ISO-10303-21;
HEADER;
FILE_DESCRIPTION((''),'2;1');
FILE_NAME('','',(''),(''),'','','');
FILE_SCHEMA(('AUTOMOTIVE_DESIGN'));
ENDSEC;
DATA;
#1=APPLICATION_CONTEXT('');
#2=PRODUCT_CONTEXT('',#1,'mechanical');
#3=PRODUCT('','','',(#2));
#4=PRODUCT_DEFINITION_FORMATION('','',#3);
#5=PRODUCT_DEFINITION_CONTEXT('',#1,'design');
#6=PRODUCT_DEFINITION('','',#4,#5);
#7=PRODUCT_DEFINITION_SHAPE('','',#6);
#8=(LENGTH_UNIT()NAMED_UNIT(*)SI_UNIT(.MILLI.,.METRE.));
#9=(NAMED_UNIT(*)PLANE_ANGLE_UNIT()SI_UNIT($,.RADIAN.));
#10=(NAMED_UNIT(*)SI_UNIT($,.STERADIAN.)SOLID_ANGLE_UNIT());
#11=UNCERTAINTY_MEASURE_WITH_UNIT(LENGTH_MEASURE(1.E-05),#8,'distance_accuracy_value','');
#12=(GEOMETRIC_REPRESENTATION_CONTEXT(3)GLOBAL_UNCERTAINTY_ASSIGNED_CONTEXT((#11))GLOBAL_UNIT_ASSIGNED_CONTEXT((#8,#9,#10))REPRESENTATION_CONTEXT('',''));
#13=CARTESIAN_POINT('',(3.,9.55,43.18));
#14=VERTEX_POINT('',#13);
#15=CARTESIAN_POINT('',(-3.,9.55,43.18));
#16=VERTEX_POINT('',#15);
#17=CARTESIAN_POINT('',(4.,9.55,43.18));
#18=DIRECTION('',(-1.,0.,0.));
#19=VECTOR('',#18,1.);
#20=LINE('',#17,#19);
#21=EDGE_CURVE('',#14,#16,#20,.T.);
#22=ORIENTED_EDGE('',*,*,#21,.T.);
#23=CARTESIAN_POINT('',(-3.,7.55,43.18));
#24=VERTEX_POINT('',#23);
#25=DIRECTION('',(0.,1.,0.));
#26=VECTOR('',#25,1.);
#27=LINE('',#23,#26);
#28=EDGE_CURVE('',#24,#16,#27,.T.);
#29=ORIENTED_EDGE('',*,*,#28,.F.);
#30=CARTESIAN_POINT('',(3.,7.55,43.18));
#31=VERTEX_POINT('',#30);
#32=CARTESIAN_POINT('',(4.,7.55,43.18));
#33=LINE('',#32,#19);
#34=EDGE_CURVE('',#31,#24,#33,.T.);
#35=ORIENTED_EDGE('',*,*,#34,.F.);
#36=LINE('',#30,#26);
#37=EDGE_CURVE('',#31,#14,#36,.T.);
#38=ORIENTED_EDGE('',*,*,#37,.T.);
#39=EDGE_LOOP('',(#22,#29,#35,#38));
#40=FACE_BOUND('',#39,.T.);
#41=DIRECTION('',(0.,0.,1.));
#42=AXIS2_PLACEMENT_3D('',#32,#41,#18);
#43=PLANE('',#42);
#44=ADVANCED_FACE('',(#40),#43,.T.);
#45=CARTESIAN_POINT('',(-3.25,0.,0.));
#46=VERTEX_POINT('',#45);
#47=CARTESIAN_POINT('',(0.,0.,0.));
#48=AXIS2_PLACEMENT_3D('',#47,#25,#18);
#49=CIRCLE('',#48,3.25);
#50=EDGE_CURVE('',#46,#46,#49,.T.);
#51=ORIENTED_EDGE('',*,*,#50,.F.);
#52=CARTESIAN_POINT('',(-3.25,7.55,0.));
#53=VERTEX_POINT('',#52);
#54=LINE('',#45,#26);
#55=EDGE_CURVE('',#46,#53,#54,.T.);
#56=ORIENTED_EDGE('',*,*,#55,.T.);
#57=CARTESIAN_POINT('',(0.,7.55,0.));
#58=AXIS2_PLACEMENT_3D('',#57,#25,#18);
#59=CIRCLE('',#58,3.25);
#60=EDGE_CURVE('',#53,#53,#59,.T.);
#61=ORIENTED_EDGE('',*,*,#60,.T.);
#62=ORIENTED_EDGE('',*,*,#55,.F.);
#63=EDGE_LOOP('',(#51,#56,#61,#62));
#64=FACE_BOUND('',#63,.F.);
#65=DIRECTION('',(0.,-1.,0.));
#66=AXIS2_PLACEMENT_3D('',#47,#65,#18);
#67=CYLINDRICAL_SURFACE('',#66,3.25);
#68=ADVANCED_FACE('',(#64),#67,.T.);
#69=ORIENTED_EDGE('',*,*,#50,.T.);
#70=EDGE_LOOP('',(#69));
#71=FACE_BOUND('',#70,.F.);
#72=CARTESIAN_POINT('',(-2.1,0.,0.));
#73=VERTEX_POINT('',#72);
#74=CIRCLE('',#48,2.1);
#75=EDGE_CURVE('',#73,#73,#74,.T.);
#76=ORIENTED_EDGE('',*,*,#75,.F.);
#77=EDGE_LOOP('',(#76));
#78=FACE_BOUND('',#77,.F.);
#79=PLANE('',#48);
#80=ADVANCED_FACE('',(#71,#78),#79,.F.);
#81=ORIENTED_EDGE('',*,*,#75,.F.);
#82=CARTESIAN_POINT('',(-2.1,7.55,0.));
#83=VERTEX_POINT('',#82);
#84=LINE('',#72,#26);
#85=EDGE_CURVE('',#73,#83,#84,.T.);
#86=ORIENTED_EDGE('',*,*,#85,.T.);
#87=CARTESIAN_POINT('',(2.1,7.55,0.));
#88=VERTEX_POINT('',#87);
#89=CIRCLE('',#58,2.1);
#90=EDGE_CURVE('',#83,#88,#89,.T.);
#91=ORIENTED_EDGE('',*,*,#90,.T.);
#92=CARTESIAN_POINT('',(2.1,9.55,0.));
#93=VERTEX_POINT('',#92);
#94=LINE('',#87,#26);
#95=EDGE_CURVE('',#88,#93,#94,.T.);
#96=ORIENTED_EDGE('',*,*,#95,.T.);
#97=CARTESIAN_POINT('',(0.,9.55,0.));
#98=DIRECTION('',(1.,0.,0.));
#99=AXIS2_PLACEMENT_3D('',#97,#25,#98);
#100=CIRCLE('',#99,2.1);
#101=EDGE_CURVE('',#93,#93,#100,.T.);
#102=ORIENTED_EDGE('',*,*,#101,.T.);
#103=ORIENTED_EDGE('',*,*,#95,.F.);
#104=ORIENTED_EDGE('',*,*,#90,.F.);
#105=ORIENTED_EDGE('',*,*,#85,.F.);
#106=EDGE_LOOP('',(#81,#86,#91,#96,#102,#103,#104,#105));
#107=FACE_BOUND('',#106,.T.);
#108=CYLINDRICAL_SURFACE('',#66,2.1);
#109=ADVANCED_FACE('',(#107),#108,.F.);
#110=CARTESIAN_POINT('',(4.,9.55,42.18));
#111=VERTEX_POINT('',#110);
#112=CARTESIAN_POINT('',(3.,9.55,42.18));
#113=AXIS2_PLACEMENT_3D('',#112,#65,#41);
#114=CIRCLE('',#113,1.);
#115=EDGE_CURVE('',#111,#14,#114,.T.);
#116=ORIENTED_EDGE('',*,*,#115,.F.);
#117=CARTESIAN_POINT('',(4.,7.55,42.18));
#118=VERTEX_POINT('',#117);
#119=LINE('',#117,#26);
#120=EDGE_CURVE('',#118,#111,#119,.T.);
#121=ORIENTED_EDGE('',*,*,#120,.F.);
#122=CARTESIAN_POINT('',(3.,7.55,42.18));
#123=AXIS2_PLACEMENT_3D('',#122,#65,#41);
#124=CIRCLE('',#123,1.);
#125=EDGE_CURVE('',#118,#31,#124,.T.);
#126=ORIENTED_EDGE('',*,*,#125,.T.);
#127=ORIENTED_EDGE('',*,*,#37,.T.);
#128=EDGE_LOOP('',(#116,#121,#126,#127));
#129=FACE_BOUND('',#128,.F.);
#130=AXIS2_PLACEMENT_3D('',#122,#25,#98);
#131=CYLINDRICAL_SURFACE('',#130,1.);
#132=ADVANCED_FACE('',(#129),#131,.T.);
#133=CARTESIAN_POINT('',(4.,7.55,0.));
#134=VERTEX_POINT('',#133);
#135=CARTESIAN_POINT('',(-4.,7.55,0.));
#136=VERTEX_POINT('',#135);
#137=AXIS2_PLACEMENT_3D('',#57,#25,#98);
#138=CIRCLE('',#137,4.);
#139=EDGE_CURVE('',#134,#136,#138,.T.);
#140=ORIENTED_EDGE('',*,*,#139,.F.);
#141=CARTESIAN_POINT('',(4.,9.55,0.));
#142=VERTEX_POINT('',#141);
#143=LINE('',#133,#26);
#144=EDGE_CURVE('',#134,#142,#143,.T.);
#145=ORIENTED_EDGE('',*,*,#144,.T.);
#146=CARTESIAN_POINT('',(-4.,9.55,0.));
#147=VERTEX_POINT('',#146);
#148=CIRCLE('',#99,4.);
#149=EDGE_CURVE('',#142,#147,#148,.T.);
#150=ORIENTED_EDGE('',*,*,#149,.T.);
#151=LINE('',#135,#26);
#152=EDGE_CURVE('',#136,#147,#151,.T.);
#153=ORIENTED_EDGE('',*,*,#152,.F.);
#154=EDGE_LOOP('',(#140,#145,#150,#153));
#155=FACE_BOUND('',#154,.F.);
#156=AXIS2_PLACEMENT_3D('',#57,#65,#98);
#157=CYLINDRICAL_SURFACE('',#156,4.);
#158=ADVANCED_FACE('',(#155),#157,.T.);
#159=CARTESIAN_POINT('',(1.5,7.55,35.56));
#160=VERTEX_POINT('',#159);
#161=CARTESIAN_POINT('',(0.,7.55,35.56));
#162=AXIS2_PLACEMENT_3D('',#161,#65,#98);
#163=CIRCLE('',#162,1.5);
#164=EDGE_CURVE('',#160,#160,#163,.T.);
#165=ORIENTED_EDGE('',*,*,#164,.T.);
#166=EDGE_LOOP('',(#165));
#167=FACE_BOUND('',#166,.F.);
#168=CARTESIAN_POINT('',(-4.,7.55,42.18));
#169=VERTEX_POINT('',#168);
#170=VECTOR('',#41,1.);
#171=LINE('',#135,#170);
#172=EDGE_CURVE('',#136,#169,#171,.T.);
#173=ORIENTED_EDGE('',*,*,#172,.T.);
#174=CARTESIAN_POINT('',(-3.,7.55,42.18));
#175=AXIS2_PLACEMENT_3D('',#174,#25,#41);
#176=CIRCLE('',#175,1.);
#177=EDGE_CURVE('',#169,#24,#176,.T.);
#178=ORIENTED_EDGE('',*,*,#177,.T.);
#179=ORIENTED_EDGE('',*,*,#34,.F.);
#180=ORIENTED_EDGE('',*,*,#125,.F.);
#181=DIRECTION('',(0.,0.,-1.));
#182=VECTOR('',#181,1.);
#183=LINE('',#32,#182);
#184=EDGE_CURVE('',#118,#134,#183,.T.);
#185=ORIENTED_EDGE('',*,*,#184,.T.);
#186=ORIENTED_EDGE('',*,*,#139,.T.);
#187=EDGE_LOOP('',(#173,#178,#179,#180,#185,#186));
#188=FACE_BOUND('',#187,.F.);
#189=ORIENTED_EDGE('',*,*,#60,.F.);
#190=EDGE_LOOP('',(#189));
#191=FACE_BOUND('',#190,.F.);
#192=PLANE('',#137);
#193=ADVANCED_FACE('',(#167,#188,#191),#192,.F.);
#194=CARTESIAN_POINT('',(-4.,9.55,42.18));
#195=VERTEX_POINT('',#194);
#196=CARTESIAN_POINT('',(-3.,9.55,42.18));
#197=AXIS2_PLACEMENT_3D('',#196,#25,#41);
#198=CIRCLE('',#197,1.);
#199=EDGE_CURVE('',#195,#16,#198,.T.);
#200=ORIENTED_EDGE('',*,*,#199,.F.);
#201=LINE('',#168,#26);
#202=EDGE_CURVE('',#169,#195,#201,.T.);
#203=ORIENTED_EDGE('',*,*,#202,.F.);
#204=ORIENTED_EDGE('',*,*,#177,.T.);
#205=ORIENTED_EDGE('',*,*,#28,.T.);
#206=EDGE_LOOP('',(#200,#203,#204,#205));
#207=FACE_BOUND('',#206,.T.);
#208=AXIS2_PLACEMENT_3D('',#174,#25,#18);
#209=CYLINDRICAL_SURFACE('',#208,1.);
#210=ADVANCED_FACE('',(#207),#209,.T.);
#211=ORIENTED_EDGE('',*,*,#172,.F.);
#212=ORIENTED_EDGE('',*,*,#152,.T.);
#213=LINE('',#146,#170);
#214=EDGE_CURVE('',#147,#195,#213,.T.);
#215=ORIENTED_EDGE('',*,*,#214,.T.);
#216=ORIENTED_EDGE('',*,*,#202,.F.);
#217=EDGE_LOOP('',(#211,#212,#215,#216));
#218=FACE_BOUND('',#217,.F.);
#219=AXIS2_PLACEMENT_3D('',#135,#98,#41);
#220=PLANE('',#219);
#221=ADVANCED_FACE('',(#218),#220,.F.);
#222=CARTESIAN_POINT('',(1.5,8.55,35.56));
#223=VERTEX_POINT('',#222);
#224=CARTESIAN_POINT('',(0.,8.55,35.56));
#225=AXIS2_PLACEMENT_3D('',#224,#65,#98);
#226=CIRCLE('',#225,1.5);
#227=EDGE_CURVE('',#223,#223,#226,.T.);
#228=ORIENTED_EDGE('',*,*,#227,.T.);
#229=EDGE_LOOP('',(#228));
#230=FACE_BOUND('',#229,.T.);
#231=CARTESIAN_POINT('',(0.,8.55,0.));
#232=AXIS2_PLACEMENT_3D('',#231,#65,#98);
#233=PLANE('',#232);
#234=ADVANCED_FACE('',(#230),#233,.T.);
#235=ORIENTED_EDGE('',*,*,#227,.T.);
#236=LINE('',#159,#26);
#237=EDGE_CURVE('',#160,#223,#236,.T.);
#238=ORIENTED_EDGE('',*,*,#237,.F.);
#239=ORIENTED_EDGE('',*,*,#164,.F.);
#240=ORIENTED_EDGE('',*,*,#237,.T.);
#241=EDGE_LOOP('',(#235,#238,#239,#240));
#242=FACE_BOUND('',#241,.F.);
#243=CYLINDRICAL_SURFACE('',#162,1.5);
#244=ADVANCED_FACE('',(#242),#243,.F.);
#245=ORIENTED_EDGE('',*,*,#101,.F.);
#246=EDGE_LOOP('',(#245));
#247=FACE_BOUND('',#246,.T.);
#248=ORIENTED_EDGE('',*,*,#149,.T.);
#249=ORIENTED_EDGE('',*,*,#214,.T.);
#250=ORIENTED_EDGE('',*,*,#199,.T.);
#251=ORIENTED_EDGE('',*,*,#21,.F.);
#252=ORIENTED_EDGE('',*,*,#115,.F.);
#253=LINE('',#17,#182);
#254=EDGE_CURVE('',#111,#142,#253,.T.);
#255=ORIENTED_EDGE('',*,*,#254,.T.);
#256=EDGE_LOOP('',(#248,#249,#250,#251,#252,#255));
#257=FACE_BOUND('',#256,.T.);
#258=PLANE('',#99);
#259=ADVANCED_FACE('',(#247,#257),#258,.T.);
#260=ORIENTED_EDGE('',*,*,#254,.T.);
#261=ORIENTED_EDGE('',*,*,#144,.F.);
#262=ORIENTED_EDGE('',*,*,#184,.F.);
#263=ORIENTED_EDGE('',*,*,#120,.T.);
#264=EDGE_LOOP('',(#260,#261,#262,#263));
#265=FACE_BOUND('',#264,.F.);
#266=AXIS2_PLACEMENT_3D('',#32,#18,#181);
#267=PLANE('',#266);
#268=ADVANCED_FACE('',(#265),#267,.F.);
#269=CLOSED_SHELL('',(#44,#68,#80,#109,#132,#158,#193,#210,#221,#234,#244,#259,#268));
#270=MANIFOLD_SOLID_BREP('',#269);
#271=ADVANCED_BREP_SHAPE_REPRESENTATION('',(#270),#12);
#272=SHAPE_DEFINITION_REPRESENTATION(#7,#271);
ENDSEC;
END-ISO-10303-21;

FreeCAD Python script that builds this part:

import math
import FreeCAD as App
import Part
import Sketcher

V = App.Vector


def edges_at(feature, points):
    """Names of the edges that pass closest to the given points."""
    edges = feature.Shape.Edges
    near = lambda p: min(range(len(edges)), key=lambda i: edges[i].distToShape(Part.Vertex(*p))[0])
    return sorted({f"Edge{near(p) + 1}" for p in points})

doc = App.newDocument("Part")
body = doc.addObject("PartDesign::Body", "Body")

# Sketch on XZ plane
sketch1 = body.newObject("Sketcher::SketchObject", "Sketch")
sketch1.AttachmentSupport = (doc.getObject("XZ_Plane"), [""])
sketch1.MapMode = "FlatFace"
sketch1.addGeometry(Part.Circle(V(0, 0, 0), V(0, 0, 1), 3.2), False)
sketch1.addGeometry(Part.Circle(V(0, 0, 0), V(0, 0, 1), 2.1), False)
sketch1.addConstraint(Sketcher.Constraint("Coincident", 0, 3, -1, 1))
sketch1.addConstraint(Sketcher.Constraint("Coincident", 1, 3, -1, 1))
sketch1.addConstraint(Sketcher.Constraint("Diameter", 0, 6.5))
sketch1.addConstraint(Sketcher.Constraint("Diameter", 1, 4.2))
pad1 = body.newObject("PartDesign::Pad", "Pad")
pad1.Profile = sketch1
pad1.Length = 7.55
pad1.Reversed = True

# Sketch on XZ plane
sketch2 = body.newObject("Sketcher::SketchObject", "Sketch001")
sketch2.AttachmentSupport = (doc.getObject("XZ_Plane"), [""])
sketch2.MapMode = "FlatFace"
sketch2.AttachmentOffset = App.Placement(V(0, 0, -7.55), App.Rotation())
sketch2.addGeometry(Part.ArcOfCircle(Part.Circle(V(0, 0, 0), V(0, 0, 1), 4), math.radians(180), math.radians(360)), False)
sketch2.addGeometry(Part.LineSegment(V(-4, 0, 0), V(-4, 43.2, 0)), False)
sketch2.addGeometry(Part.LineSegment(V(-4, 43.2, 0), V(4, 43.2, 0)), False)
sketch2.addGeometry(Part.LineSegment(V(4, 43.2, 0), V(4, 0, 0)), False)
sketch2.addGeometry(Part.Circle(V(0, 0, 0), V(0, 0, 1), 2.1), False)
sketch2.addConstraint(Sketcher.Constraint("Tangent", 0, 1, 1, 1))
sketch2.addConstraint(Sketcher.Constraint("Coincident", 1, 2, 2, 1))
sketch2.addConstraint(Sketcher.Constraint("Coincident", 2, 2, 3, 1))
sketch2.addConstraint(Sketcher.Constraint("Tangent", 3, 2, 0, 2))
sketch2.addConstraint(Sketcher.Constraint("Vertical", 1))
sketch2.addConstraint(Sketcher.Constraint("Horizontal", 2))
sketch2.addConstraint(Sketcher.Constraint("Vertical", 3))
sketch2.addConstraint(Sketcher.Constraint("Coincident", 0, 3, -1, 1))
sketch2.addConstraint(Sketcher.Constraint("Coincident", 4, 3, -1, 1))
sketch2.addConstraint(Sketcher.Constraint("Radius", 0, 4.0))
sketch2.addConstraint(Sketcher.Constraint("Diameter", 4, 4.2))
sketch2.addConstraint(Sketcher.Constraint("DistanceY", 1, 1, 1, 2, 43.18))
pad2 = body.newObject("PartDesign::Pad", "Pad001")
pad2.Profile = sketch2
pad2.Length = 2
pad2.Reversed = True

# Sketch on XZ plane
sketch3 = body.newObject("Sketcher::SketchObject", "Sketch002")
sketch3.AttachmentSupport = (doc.getObject("XZ_Plane"), [""])
sketch3.MapMode = "FlatFace"
sketch3.AttachmentOffset = App.Placement(V(0, 0, -7.55), App.Rotation())
sketch3.addGeometry(Part.Circle(V(0, 35.6, 0), V(0, 0, 1), 1.5), False)
sketch3.addConstraint(Sketcher.Constraint("PointOnObject", 0, 3, -2))
sketch3.addConstraint(Sketcher.Constraint("Diameter", 0, 3.0))
sketch3.addConstraint(Sketcher.Constraint("DistanceY", -1, 1, 0, 3, 35.56))
pocket1 = body.newObject("PartDesign::Pocket", "Pocket")
pocket1.Profile = sketch3
pocket1.Length = 1
doc.recompute()

fillet = body.newObject("PartDesign::Fillet", "Fillet")
fillet.Base = (pocket1, edges_at(pocket1, [(-4, 8.55, 43.18), (4, 8.55, 43.18)]))
fillet.Radius = 1

doc.recompute()
